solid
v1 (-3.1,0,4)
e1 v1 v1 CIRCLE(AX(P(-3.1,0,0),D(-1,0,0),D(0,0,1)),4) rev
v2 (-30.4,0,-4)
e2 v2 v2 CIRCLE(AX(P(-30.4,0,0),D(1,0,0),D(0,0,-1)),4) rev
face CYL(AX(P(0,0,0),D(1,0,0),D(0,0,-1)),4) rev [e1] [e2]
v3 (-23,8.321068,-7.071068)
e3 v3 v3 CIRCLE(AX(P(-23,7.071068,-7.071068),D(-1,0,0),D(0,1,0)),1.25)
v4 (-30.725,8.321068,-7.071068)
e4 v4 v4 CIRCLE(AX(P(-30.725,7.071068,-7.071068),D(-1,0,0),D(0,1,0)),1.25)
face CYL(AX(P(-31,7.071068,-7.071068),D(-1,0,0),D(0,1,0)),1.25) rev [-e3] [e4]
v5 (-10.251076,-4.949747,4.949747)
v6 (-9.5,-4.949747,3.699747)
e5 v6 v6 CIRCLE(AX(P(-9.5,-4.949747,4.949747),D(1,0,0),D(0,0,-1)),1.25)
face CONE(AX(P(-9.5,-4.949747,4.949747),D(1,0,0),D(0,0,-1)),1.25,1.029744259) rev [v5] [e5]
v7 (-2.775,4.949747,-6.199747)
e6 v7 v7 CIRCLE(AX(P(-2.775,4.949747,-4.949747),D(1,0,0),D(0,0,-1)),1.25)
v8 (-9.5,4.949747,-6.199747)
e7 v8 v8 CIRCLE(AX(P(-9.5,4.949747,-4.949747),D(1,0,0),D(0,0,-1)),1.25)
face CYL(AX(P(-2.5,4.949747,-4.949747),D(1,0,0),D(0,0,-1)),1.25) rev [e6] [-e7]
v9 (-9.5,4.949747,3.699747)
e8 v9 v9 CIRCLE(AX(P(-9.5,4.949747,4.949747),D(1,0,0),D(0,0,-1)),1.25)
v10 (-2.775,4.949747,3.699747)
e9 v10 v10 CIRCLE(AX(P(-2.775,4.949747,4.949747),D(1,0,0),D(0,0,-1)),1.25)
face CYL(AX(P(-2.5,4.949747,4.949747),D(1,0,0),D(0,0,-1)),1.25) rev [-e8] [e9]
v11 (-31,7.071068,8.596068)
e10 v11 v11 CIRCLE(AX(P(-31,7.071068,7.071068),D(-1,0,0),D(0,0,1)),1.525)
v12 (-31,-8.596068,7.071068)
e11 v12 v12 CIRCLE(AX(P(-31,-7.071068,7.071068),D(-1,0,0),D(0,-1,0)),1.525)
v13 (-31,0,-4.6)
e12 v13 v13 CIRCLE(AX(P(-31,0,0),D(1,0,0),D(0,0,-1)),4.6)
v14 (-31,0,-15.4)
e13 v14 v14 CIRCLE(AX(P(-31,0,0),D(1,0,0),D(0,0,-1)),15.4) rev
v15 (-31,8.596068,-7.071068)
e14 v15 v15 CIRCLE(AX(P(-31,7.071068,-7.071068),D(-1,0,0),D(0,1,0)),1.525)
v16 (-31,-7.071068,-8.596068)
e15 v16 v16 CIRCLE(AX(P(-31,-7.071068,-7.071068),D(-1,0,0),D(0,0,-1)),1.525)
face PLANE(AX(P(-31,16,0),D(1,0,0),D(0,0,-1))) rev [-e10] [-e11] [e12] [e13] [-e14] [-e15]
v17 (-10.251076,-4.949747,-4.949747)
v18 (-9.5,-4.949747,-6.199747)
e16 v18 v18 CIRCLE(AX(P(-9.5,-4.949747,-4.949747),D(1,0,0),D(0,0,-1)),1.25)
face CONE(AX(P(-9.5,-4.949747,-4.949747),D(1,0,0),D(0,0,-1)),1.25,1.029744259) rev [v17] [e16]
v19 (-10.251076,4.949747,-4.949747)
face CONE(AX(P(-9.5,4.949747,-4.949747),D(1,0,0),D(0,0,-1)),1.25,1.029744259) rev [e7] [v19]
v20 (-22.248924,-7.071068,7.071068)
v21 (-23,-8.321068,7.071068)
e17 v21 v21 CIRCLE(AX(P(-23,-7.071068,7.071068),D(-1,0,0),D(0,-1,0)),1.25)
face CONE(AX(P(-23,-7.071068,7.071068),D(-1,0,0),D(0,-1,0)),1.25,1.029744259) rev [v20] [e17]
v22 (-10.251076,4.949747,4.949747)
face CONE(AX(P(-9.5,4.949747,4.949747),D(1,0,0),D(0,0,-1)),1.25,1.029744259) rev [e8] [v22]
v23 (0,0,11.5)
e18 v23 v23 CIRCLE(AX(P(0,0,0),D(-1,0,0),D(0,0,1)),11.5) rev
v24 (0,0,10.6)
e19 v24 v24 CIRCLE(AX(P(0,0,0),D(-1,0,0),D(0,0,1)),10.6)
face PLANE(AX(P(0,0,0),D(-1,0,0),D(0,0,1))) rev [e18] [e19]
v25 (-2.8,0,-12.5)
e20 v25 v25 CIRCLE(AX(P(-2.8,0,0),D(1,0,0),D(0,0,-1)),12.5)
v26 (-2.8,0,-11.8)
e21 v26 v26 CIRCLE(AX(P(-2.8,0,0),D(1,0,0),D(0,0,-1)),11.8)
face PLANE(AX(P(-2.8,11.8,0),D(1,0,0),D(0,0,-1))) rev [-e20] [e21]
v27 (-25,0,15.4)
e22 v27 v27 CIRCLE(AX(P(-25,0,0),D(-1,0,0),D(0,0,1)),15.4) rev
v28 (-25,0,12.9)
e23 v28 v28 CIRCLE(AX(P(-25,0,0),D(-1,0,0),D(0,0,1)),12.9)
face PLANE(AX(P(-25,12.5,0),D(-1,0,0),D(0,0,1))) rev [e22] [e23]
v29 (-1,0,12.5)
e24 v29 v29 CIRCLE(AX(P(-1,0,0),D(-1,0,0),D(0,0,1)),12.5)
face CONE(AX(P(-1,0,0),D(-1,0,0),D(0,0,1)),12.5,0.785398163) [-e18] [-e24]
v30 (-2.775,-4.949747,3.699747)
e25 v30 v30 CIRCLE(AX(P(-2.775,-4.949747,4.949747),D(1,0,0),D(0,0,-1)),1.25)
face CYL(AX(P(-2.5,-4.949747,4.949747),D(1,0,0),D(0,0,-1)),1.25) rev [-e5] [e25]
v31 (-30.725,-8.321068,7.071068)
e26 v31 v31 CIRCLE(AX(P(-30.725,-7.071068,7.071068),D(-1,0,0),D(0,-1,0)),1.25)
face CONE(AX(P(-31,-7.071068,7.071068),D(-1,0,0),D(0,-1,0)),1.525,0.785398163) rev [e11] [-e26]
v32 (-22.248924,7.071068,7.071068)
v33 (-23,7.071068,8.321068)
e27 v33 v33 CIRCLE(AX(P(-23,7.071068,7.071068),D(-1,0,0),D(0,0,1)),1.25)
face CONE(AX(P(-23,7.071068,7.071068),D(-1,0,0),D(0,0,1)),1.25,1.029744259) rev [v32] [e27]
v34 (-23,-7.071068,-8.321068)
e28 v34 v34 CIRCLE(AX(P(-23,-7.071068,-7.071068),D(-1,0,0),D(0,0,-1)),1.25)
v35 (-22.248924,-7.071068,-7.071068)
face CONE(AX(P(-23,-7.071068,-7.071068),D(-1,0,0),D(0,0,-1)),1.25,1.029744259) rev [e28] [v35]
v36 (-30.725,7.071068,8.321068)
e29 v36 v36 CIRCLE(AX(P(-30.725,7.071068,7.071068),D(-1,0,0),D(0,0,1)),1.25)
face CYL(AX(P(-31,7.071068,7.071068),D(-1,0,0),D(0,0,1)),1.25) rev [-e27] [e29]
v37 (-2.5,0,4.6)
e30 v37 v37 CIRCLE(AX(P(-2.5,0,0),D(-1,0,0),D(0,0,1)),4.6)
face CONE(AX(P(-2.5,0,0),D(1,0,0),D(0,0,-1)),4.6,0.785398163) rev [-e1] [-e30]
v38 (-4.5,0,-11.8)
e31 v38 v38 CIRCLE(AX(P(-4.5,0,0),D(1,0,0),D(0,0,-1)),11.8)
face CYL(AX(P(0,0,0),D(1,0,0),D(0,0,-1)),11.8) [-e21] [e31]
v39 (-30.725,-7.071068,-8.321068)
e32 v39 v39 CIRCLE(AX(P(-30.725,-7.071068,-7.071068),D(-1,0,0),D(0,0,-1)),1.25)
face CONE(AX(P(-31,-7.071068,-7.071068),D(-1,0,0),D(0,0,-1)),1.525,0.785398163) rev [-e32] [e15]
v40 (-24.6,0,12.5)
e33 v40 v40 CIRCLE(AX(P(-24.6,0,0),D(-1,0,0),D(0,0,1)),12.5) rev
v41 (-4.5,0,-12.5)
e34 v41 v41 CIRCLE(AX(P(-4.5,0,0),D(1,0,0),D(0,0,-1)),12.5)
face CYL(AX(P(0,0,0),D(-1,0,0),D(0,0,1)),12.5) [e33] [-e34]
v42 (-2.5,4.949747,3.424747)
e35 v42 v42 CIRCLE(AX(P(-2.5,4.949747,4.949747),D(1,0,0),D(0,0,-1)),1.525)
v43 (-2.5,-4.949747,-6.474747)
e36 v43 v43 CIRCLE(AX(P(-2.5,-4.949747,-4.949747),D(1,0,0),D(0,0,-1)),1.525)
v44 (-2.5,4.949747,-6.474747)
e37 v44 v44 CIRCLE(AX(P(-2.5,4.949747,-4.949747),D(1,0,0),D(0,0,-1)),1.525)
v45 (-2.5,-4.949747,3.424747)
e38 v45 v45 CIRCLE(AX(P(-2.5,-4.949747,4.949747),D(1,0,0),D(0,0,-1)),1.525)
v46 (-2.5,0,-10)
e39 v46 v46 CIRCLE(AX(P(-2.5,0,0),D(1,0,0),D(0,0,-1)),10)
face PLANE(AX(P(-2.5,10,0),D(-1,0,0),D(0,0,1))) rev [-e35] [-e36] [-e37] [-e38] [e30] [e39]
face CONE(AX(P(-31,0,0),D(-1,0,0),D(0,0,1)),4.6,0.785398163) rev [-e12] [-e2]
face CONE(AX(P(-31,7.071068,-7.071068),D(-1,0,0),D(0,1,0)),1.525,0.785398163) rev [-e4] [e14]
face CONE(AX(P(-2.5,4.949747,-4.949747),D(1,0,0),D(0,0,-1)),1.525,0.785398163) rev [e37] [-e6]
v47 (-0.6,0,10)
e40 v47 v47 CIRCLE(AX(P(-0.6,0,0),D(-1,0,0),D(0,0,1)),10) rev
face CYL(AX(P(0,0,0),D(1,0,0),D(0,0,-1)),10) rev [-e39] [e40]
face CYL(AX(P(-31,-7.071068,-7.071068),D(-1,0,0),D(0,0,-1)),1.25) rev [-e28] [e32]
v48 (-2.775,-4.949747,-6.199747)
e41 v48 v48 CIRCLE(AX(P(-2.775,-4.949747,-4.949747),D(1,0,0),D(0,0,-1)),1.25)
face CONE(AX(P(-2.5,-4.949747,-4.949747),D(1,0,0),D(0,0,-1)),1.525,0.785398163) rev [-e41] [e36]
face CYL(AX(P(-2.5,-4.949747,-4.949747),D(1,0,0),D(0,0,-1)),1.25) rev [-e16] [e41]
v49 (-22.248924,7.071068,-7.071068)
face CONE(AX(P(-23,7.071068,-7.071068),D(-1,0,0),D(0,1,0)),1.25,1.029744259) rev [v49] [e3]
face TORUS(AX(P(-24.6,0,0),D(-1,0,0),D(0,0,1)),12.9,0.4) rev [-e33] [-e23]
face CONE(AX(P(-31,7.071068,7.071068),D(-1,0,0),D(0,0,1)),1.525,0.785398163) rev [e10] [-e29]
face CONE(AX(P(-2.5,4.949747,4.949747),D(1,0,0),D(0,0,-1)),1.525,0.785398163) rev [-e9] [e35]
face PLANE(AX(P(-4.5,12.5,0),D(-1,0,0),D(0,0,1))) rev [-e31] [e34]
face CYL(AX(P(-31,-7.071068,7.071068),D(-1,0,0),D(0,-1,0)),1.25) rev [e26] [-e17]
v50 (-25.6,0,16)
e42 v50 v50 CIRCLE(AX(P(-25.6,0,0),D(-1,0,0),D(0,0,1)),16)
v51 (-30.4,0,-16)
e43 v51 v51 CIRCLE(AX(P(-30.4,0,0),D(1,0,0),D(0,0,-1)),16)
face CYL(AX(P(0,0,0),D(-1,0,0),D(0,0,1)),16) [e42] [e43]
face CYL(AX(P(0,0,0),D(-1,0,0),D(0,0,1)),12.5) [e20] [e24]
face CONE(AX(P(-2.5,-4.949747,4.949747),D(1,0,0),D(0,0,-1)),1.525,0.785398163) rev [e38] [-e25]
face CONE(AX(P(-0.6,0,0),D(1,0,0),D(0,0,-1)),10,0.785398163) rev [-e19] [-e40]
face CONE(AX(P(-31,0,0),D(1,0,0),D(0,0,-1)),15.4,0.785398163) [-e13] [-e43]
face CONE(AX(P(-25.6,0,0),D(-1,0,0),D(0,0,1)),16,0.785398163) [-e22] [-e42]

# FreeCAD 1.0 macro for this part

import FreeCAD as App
import Part
import Sketcher
from FreeCAD import Vector
Q = App.Units.Quantity


def edges_at(feature, points):
    """Names of the edges that pass closest to the given points."""
    edges = feature.Shape.Edges
    near = lambda p: min(range(len(edges)), key=lambda i: edges[i].distToShape(Part.Vertex(*p))[0])
    return sorted({f"Edge{near(p) + 1}" for p in points})

doc = App.newDocument("Part")
body = doc.addObject("PartDesign::Body", "Body")

sketch1 = body.newObject("Sketcher::SketchObject", "Sketch")
sketch1.AttachmentSupport = (doc.getObject("XY_Plane"), [""])
sketch1.MapMode = "FlatFace"
sketch1.addGeometry([
    Part.LineSegment(Vector(0, 0, 0), Vector(0, 12.5, 0)),
    Part.LineSegment(Vector(0, 12.5, 0), Vector(-25, 12.5, 0)),
    Part.LineSegment(Vector(-25, 12.5, 0), Vector(-25, 16, 0)),
    Part.LineSegment(Vector(-25, 16, 0), Vector(-31, 16, 0)),
    Part.LineSegment(Vector(-31, 16, 0), Vector(-31, 0, 0)),
    Part.LineSegment(Vector(-31, 0, 0), Vector(0, 0, 0)),
], False)
sketch1.addConstraint([
    Sketcher.Constraint("Coincident", 0, 2, 1, 1),
    Sketcher.Constraint("Coincident", 1, 2, 2, 1),
    Sketcher.Constraint("Coincident", 2, 2, 3, 1),
    Sketcher.Constraint("Coincident", 3, 2, 4, 1),
    Sketcher.Constraint("Coincident", 4, 2, 5, 1),
    Sketcher.Constraint("Coincident", 5, 2, 0, 1),
    Sketcher.Constraint("Vertical", 0),
    Sketcher.Constraint("Horizontal", 1),
    Sketcher.Constraint("Vertical", 2),
    Sketcher.Constraint("Horizontal", 3),
    Sketcher.Constraint("Vertical", 4),
    Sketcher.Constraint("Horizontal", 5),
    Sketcher.Constraint("Coincident", 5, 2, -1, 1),
    Sketcher.Constraint("DistanceX", 1, 2, 1, 1, 25.0),
    Sketcher.Constraint("DistanceX", 3, 2, 3, 1, 6.0),
    Sketcher.Constraint("DistanceY", 4, 2, 4, 1, 16.0),
    Sketcher.Constraint("DistanceY", 0, 1, 0, 2, 12.5),
])
revolution = body.newObject("PartDesign::Revolution", "Revolution")
revolution.Profile = sketch1
revolution.ReferenceAxis = (sketch1, ["H_Axis"])
revolution.Angle = 360

sketch2 = body.newObject("Sketcher::SketchObject", "Sketch001")
sketch2.AttachmentSupport = (doc.getObject("XY_Plane"), [""])
sketch2.MapMode = "FlatFace"
sketch2.addGeometry([
    Part.LineSegment(Vector(-4.5, 12.5, 0), Vector(-4.5, 11.8, 0)),
    Part.LineSegment(Vector(-4.5, 11.8, 0), Vector(-2.8, 11.8, 0)),
    Part.LineSegment(Vector(-2.8, 11.8, 0), Vector(-2.8, 12.5, 0)),
    Part.LineSegment(Vector(-2.8, 12.5, 0), Vector(-4.5, 12.5, 0)),
], False)
sketch2.addConstraint([
    Sketcher.Constraint("Coincident", 0, 2, 1, 1),
    Sketcher.Constraint("Coincident", 1, 2, 2, 1),
    Sketcher.Constraint("Coincident", 2, 2, 3, 1),
    Sketcher.Constraint("Coincident", 3, 2, 0, 1),
    Sketcher.Constraint("Vertical", 0),
    Sketcher.Constraint("Horizontal", 1),
    Sketcher.Constraint("Vertical", 2),
    Sketcher.Constraint("Horizontal", 3),
    Sketcher.Constraint("DistanceX", 1, 1, 1, 2, 1.7),
    Sketcher.Constraint("DistanceY", 0, 2, 0, 1, 0.7),
    Sketcher.Constraint("DistanceX", 0, 2, -1, 1, 4.5),
    Sketcher.Constraint("DistanceY", -1, 1, 0, 2, 11.8),
])
groove = body.newObject("PartDesign::Groove", "Groove")
groove.Profile = sketch2
groove.ReferenceAxis = (sketch2, ["H_Axis"])
groove.Angle = 360
doc.recompute()

chamfer = body.newObject("PartDesign::Chamfer", "Chamfer")
chamfer.Base = (groove, edges_at(groove, [(0, -12.5, 0)]))
chamfer.Size = 1
doc.recompute()

fillet = body.newObject("PartDesign::Fillet", "Fillet")
fillet.Base = (chamfer, edges_at(chamfer, [(-25, -12.5, 0)]))
fillet.Radius = 0.4

sketch3 = body.newObject("Sketcher::SketchObject", "Sketch002")
sketch3.AttachmentSupport = (doc.getObject("XY_Plane"), [""])
sketch3.MapMode = "FlatFace"
sketch3.addGeometry([
    Part.LineSegment(Vector(-2.5, 10, 0), Vector(-2.5, 0, 0)),
    Part.LineSegment(Vector(-2.5, 0, 0), Vector(0, 0, 0)),
    Part.LineSegment(Vector(0, 0, 0), Vector(0, 10, 0)),
    Part.LineSegment(Vector(0, 10, 0), Vector(-2.5, 10, 0)),
], False)
sketch3.addConstraint([
    Sketcher.Constraint("Coincident", 0, 2, 1, 1),
    Sketcher.Constraint("Coincident", 1, 2, 2, 1),
    Sketcher.Constraint("Coincident", 2, 2, 3, 1),
    Sketcher.Constraint("Coincident", 3, 2, 0, 1),
    Sketcher.Constraint("Vertical", 0),
    Sketcher.Constraint("Horizontal", 1),
    Sketcher.Constraint("Vertical", 2),
    Sketcher.Constraint("Horizontal", 3),
    Sketcher.Constraint("Coincident", 1, 2, -1, 1),
    Sketcher.Constraint("DistanceY", 0, 2, 0, 1, 10.0),
    Sketcher.Constraint("DistanceX", 1, 1, 1, 2, 2.5),
])
groove2 = body.newObject("PartDesign::Groove", "Groove001")
groove2.Profile = sketch3
groove2.ReferenceAxis = (sketch3, ["H_Axis"])
groove2.Angle = 360

sketch4 = body.newObject("Sketcher::SketchObject", "Sketch003")
sketch4.AttachmentSupport = (doc.getObject("XZ_Plane"), [""])
sketch4.MapMode = "FlatFace"
sketch4.AttachmentOffset = App.Placement(Vector(0, 0, -4.949747), App.Rotation())
sketch4.addGeometry([
    Part.LineSegment(Vector(-10.251076, -4.949747, 0), Vector(-2.5, -4.949747, 0)),
    Part.LineSegment(Vector(-2.5, -4.949747, 0), Vector(-2.5, -6.474747, 0)),
    Part.LineSegment(Vector(-2.5, -6.474747, 0), Vector(-2.775, -6.199747, 0)),
    Part.LineSegment(Vector(-2.775, -6.199747, 0), Vector(-9.5, -6.199747, 0)),
    Part.LineSegment(Vector(-9.5, -6.199747, 0), Vector(-10.251076, -4.949747, 0)),
], False)
sketch4.addGeometry(Part.LineSegment(Vector(-2.5, -4.949747, 0), Vector(-10.251076, -4.949747, 0)), True)
sketch4.addConstraint([
    Sketcher.Constraint("Coincident", 0, 2, 1, 1),
    Sketcher.Constraint("Coincident", 1, 2, 2, 1),
    Sketcher.Constraint("Coincident", 2, 2, 3, 1),
    Sketcher.Constraint("Coincident", 3, 2, 4, 1),
    Sketcher.Constraint("Coincident", 4, 2, 0, 1),
    Sketcher.Constraint("Horizontal", 0),
    Sketcher.Constraint("Vertical", 1),
    Sketcher.Constraint("Horizontal", 3),
    Sketcher.Constraint("Horizontal", 5),
    Sketcher.Constraint("Coincident", 5, 1, 0, 2),
    Sketcher.Constraint("Equal", 0, 5),
    Sketcher.Constraint("Angle", 2, Q("135 deg")),
    Sketcher.Constraint("Angle", 4, Q("121 deg")),
    Sketcher.Constraint("DistanceX", 3, 2, 1, 2, 7.0),
    Sketcher.Constraint("DistanceX", 0, 2, -1, 1, 2.5),
    Sketcher.Constraint("DistanceX", 3, 2, 3, 1, 6.725),
    Sketcher.Constraint("DistanceY", 1, 2, 1, 1, 1.525),
    Sketcher.Constraint("DistanceY", 0, 2, -1, 1, 4.949747),
])
groove3 = body.newObject("PartDesign::Groove", "Groove002")
groove3.Profile = sketch4
groove3.ReferenceAxis = (sketch4, ["Axis0"])
groove3.Angle = 360
doc.recompute()

polarpattern = body.newObject("PartDesign::PolarPattern", "PolarPattern")
polarpattern.Originals = [groove3]
polarpattern.Axis = (doc.getObject("X_Axis"), [""])
polarpattern.Angle = 360
polarpattern.Occurrences = 4
body.Tip = polarpattern
doc.recompute()

chamfer2 = body.newObject("PartDesign::Chamfer", "Chamfer001")
chamfer2.Base = (polarpattern, edges_at(polarpattern, [(0, -10, 0)]))
chamfer2.Size = 0.6

sketch5 = body.newObject("Sketcher::SketchObject", "Sketch004")
sketch5.AttachmentSupport = (doc.getObject("XY_Plane"), [""])
sketch5.MapMode = "FlatFace"
sketch5.addGeometry([
    Part.LineSegment(Vector(-31, 4, 0), Vector(-31, 0, 0)),
    Part.LineSegment(Vector(-31, 0, 0), Vector(0, 0, 0)),
    Part.LineSegment(Vector(0, 0, 0), Vector(0, 4, 0)),
    Part.LineSegment(Vector(0, 4, 0), Vector(-31, 4, 0)),
], False)
sketch5.addConstraint([
    Sketcher.Constraint("Coincident", 0, 2, 1, 1),
    Sketcher.Constraint("Coincident", 1, 2, 2, 1),
    Sketcher.Constraint("Coincident", 2, 2, 3, 1),
    Sketcher.Constraint("Coincident", 3, 2, 0, 1),
    Sketcher.Constraint("Vertical", 0),
    Sketcher.Constraint("Horizontal", 1),
    Sketcher.Constraint("Vertical", 2),
    Sketcher.Constraint("Horizontal", 3),
    Sketcher.Constraint("Coincident", 1, 2, -1, 1),
    Sketcher.Constraint("DistanceX", 1, 1, 1, 2, 31.0),
    Sketcher.Constraint("DistanceY", 0, 2, 0, 1, 4.0),
])
groove4 = body.newObject("PartDesign::Groove", "Groove003")
groove4.Profile = sketch5
groove4.ReferenceAxis = (sketch5, ["H_Axis"])
groove4.Angle = 360
doc.recompute()

chamfer3 = body.newObject("PartDesign::Chamfer", "Chamfer002")
chamfer3.Base = (groove4, edges_at(groove4, [(-31, -4, 0), (-2.5, -4, 0)]))
chamfer3.Size = 0.6

sketch6 = body.newObject("Sketcher::SketchObject", "Sketch005")
sketch6.AttachmentSupport = (doc.getObject("XZ_Plane"), [""])
sketch6.MapMode = "FlatFace"
sketch6.AttachmentOffset = App.Placement(Vector(0, 0, -7.071068), App.Rotation())
sketch6.addGeometry([
    Part.LineSegment(Vector(-22.248924, 7.071068, 0), Vector(-31, 7.071068, 0)),
    Part.LineSegment(Vector(-31, 7.071068, 0), Vector(-31, 8.596068, 0)),
    Part.LineSegment(Vector(-31, 8.596068, 0), Vector(-30.725, 8.321068, 0)),
    Part.LineSegment(Vector(-30.725, 8.321068, 0), Vector(-23, 8.321068, 0)),
    Part.LineSegment(Vector(-23, 8.321068, 0), Vector(-22.248924, 7.071068, 0)),
], False)
sketch6.addGeometry(Part.LineSegment(Vector(-31, 7.071068, 0), Vector(-22.248924, 7.071068, 0)), True)
sketch6.addConstraint([
    Sketcher.Constraint("Coincident", 0, 2, 1, 1),
    Sketcher.Constraint("Coincident", 1, 2, 2, 1),
    Sketcher.Constraint("Coincident", 2, 2, 3, 1),
    Sketcher.Constraint("Coincident", 3, 2, 4, 1),
    Sketcher.Constraint("Coincident", 4, 2, 0, 1),
    Sketcher.Constraint("Horizontal", 0),
    Sketcher.Constraint("Vertical", 1),
    Sketcher.Constraint("Horizontal", 3),
    Sketcher.Constraint("Horizontal", 5),
    Sketcher.Constraint("Coincident", 5, 1, 0, 2),
    Sketcher.Constraint("Equal", 0, 5),
    Sketcher.Constraint("Angle", 2, Q("-45 deg")),
    Sketcher.Constraint("Angle", 4, Q("-59 deg")),
    Sketcher.Constraint("DistanceX", 0, 2, -1, 1, 31.0),
    Sketcher.Constraint("DistanceX", 3, 2, -1, 1, 23.0),
    Sketcher.Constraint("DistanceX", 3, 1, 3, 2, 7.725),
    Sketcher.Constraint("DistanceY", 1, 1, 1, 2, 1.525),
    Sketcher.Constraint("DistanceY", -1, 1, 0, 2, 7.071068),
])
groove5 = body.newObject("PartDesign::Groove", "Groove004")
groove5.Profile = sketch6
groove5.ReferenceAxis = (sketch6, ["Axis0"])
groove5.Angle = 360
doc.recompute()

polarpattern2 = body.newObject("PartDesign::PolarPattern", "PolarPattern001")
polarpattern2.Originals = [groove5]
polarpattern2.Axis = (doc.getObject("X_Axis"), [""])
polarpattern2.Angle = 360
polarpattern2.Occurrences = 4
body.Tip = polarpattern2
doc.recompute()

chamfer4 = body.newObject("PartDesign::Chamfer", "Chamfer003")
chamfer4.Base = (polarpattern2, edges_at(polarpattern2, [(-31, -16, 0), (-25, -16, 0)]))
chamfer4.Size = 0.6

doc.recompute()
